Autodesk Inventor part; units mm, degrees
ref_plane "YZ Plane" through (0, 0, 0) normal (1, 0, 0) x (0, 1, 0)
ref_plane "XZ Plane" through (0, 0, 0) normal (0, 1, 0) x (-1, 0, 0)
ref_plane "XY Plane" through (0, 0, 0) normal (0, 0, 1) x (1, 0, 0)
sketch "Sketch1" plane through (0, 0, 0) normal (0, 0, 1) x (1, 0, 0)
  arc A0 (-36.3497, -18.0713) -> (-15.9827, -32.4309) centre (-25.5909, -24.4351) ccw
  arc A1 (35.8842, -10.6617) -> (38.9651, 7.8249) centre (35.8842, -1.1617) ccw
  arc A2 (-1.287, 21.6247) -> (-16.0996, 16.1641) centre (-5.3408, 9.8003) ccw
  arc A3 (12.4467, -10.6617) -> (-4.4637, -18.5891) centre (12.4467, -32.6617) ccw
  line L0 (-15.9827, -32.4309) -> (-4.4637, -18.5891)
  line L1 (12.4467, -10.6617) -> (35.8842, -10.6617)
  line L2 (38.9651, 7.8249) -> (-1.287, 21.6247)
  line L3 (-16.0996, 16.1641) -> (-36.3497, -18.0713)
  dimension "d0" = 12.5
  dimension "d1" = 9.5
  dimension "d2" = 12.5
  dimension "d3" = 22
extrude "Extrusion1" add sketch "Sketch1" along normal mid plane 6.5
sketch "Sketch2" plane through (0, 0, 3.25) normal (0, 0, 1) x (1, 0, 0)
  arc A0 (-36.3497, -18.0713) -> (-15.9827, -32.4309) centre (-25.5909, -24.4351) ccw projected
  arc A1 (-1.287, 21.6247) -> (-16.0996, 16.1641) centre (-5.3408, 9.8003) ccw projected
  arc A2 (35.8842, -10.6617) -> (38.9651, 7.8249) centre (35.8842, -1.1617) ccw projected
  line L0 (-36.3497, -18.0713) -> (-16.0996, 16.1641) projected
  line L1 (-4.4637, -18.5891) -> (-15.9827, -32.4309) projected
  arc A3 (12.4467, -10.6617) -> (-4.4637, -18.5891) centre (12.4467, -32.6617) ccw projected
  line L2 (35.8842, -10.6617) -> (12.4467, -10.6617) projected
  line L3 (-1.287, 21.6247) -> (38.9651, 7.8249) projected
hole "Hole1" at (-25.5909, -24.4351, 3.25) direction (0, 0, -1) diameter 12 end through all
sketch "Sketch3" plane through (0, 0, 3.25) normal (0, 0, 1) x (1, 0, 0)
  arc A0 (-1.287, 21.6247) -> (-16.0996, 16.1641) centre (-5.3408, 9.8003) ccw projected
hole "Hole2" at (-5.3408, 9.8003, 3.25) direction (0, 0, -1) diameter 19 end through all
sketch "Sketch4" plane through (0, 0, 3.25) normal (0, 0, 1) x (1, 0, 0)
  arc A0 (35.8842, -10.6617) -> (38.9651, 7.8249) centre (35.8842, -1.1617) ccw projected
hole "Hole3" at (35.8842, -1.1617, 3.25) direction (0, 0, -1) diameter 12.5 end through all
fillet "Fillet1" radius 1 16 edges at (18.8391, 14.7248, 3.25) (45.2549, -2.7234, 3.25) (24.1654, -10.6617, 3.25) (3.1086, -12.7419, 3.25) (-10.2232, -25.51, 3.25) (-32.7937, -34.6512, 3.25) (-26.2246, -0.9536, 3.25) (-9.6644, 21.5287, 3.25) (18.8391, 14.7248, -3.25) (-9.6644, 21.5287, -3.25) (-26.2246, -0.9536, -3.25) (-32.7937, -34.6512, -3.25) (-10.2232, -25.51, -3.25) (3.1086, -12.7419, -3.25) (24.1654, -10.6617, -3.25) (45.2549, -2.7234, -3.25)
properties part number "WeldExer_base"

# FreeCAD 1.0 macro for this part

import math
import FreeCAD as App
import Part
import Sketcher

V = App.Vector
Q = App.Units.Quantity


def edges_at(feature, points):
    """Names of the edges that pass closest to the given points."""
    edges = feature.Shape.Edges
    near = lambda p: min(range(len(edges)), key=lambda i: edges[i].distToShape(Part.Vertex(*p))[0])
    return sorted({f"Edge{near(p) + 1}" for p in points})

doc = App.newDocument("Part")
body = doc.addObject("PartDesign::Body", "Body")

# Sketch on XY plane
sketch1 = body.newObject("Sketcher::SketchObject", "Sketch")
sketch1.AttachmentSupport = (doc.getObject("XY_Plane"), [""])
sketch1.MapMode = "FlatFace"
sketch1.addGeometry([
    Part.LineSegment(V(-16.0996, 16.1641, 0), V(-36.3497, -18.0713, 0)),  # 0
    Part.ArcOfCircle(Part.Circle(V(-25.5909, -24.4351, 0), V(0, 0, 1), 12.499989), math.radians(149.395804), math.radians(320.23328)),  # 1
    Part.LineSegment(V(-15.9827, -32.4309, 0), V(-4.4637, -18.5891, 0)),  # 2
    Part.ArcOfCircle(Part.Circle(V(12.4467, -32.6617, 0), V(0, 0, 1), 22), math.radians(90), math.radians(140.233243)),  # 3
    Part.LineSegment(V(12.4467, -10.6617, 0), V(35.8842, -10.6617, 0)),  # 4
    Part.ArcOfCircle(Part.Circle(V(35.8842, -1.1617, 0), V(0, 0, 1), 9.5), math.radians(-90), math.radians(71.076611)),  # 5
    Part.LineSegment(V(38.9651, 7.8249, 0), V(-1.287, 21.6247, 0)),  # 6
    Part.ArcOfCircle(Part.Circle(V(-5.3408, 9.8003, 0), V(0, 0, 1), 12.499989), math.radians(71.07657), math.radians(149.395804)),  # 7
], False)
sketch1.addConstraint([
    Sketcher.Constraint("Tangent", 0, 2, 1, 1),
    Sketcher.Constraint("Tangent", 1, 2, 2, 1),
    Sketcher.Constraint("Tangent", 2, 2, 3, 2),
    Sketcher.Constraint("Tangent", 3, 1, 4, 1),
    Sketcher.Constraint("Tangent", 4, 2, 5, 1),
    Sketcher.Constraint("Tangent", 5, 2, 6, 1),
    Sketcher.Constraint("Tangent", 6, 2, 7, 1),
    Sketcher.Constraint("Tangent", 7, 2, 0, 1),
    Sketcher.Constraint("Horizontal", 4),
    Sketcher.Constraint("Equal", 1, 7),
    Sketcher.Constraint("Radius", 3, Q("22 mm")),
    Sketcher.Constraint("Radius", 1, Q("12.5 mm")),
    Sketcher.Constraint("Radius", 5, Q("9.5 mm")),
    Sketcher.Constraint("DistanceX", 1, 3, 7, 3, Q("20.25 mm")),
    Sketcher.Constraint("Distance", 0, Q("39.776 mm")),
    Sketcher.Constraint("Distance", 6, Q("42.552 mm")),
    Sketcher.Constraint("DistanceX", 4, 1, 4, 2, Q("23.4375 mm")),
    Sketcher.Constraint("DistanceX", 1, 3, -1, 1, Q("25.591 mm")),
    Sketcher.Constraint("DistanceY", 1, 3, -1, 1, Q("24.435 mm")),
    Sketcher.Constraint("DistanceY", 1, 2, -1, 1, Q("32.431 mm")),
])
pad1 = body.newObject("PartDesign::Pad", "Pad")
pad1.Profile = sketch1
pad1.Length = 6.5
pad1.Midplane = True

# Sketch on XY plane
sketch2 = body.newObject("Sketcher::SketchObject", "Sketch001")
sketch2.AttachmentSupport = (doc.getObject("XY_Plane"), [""])
sketch2.MapMode = "FlatFace"
sketch2.AttachmentOffset = App.Placement(V(0, 0, 3.25), App.Rotation())
sketch2.addGeometry(Part.Circle(V(-25.5909, -24.4351, 0), V(0, 0, 1), 6), False)
sketch2.addConstraint([
    Sketcher.Constraint("Diameter", 0, Q("12 mm")),
    Sketcher.Constraint("DistanceX", 0, 3, -1, 1, Q("25.591 mm")),
    Sketcher.Constraint("DistanceY", 0, 3, -1, 1, Q("24.435 mm")),
])
doc.recompute()
hole = body.newObject("PartDesign::Hole", "Hole")
hole.Profile = sketch2
hole.ThreadType = "None"
hole.Diameter = 12
hole.DepthType = "ThroughAll"

# Sketch on XY plane
sketch3 = body.newObject("Sketcher::SketchObject", "Sketch002")
sketch3.AttachmentSupport = (doc.getObject("XY_Plane"), [""])
sketch3.MapMode = "FlatFace"
sketch3.AttachmentOffset = App.Placement(V(0, 0, 3.25), App.Rotation())
sketch3.addGeometry(Part.Circle(V(-5.3408, 9.8003, 0), V(0, 0, 1), 9.5), False)
sketch3.addConstraint([
    Sketcher.Constraint("Diameter", 0, Q("19 mm")),
    Sketcher.Constraint("DistanceX", 0, 3, -1, 1, Q("5.3408 mm")),
    Sketcher.Constraint("DistanceY", -1, 1, 0, 3, Q("9.8003 mm")),
])
doc.recompute()
hole2 = body.newObject("PartDesign::Hole", "Hole001")
hole2.Profile = sketch3
hole2.ThreadType = "None"
hole2.Diameter = 19
hole2.DepthType = "ThroughAll"

# Sketch on XY plane
sketch4 = body.newObject("Sketcher::SketchObject", "Sketch003")
sketch4.AttachmentSupport = (doc.getObject("XY_Plane"), [""])
sketch4.MapMode = "FlatFace"
sketch4.AttachmentOffset = App.Placement(V(0, 0, 3.25), App.Rotation())
sketch4.addGeometry(Part.Circle(V(35.8842, -1.1617, 0), V(0, 0, 1), 6.25), False)
sketch4.addConstraint([
    Sketcher.Constraint("Diameter", 0, Q("12.5 mm")),
    Sketcher.Constraint("DistanceX", -1, 1, 0, 3, Q("35.8842 mm")),
    Sketcher.Constraint("DistanceY", 0, 3, -1, 1, Q("1.1617 mm")),
])
doc.recompute()
hole3 = body.newObject("PartDesign::Hole", "Hole002")
hole3.Profile = sketch4
hole3.ThreadType = "None"
hole3.Diameter = 12.5
hole3.DepthType = "ThroughAll"
doc.recompute()

fillet = body.newObject("PartDesign::Fillet", "Fillet")
fillet.Base = (hole3, edges_at(hole3, [
    (18.839, 14.725, 3.25),
    (45.255, -2.723, 3.25),
    (24.165, -10.662, 3.25),
    (3.109, -12.742, 3.25),
    (-10.223, -25.51, 3.25),
    (-32.794, -34.651, 3.25),
    (-26.225, -0.954, 3.25),
    (-9.664, 21.529, 3.25),
    (18.839, 14.725, -3.25),
    (-9.664, 21.529, -3.25),
    (-26.225, -0.954, -3.25),
    (-32.794, -34.651, -3.25),
    (-10.223, -25.51, -3.25),
    (3.109, -12.742, -3.25),
    (24.165, -10.662, -3.25),
    (45.255, -2.723, -3.25),
]))
fillet.Radius = 1

doc.recompute()
